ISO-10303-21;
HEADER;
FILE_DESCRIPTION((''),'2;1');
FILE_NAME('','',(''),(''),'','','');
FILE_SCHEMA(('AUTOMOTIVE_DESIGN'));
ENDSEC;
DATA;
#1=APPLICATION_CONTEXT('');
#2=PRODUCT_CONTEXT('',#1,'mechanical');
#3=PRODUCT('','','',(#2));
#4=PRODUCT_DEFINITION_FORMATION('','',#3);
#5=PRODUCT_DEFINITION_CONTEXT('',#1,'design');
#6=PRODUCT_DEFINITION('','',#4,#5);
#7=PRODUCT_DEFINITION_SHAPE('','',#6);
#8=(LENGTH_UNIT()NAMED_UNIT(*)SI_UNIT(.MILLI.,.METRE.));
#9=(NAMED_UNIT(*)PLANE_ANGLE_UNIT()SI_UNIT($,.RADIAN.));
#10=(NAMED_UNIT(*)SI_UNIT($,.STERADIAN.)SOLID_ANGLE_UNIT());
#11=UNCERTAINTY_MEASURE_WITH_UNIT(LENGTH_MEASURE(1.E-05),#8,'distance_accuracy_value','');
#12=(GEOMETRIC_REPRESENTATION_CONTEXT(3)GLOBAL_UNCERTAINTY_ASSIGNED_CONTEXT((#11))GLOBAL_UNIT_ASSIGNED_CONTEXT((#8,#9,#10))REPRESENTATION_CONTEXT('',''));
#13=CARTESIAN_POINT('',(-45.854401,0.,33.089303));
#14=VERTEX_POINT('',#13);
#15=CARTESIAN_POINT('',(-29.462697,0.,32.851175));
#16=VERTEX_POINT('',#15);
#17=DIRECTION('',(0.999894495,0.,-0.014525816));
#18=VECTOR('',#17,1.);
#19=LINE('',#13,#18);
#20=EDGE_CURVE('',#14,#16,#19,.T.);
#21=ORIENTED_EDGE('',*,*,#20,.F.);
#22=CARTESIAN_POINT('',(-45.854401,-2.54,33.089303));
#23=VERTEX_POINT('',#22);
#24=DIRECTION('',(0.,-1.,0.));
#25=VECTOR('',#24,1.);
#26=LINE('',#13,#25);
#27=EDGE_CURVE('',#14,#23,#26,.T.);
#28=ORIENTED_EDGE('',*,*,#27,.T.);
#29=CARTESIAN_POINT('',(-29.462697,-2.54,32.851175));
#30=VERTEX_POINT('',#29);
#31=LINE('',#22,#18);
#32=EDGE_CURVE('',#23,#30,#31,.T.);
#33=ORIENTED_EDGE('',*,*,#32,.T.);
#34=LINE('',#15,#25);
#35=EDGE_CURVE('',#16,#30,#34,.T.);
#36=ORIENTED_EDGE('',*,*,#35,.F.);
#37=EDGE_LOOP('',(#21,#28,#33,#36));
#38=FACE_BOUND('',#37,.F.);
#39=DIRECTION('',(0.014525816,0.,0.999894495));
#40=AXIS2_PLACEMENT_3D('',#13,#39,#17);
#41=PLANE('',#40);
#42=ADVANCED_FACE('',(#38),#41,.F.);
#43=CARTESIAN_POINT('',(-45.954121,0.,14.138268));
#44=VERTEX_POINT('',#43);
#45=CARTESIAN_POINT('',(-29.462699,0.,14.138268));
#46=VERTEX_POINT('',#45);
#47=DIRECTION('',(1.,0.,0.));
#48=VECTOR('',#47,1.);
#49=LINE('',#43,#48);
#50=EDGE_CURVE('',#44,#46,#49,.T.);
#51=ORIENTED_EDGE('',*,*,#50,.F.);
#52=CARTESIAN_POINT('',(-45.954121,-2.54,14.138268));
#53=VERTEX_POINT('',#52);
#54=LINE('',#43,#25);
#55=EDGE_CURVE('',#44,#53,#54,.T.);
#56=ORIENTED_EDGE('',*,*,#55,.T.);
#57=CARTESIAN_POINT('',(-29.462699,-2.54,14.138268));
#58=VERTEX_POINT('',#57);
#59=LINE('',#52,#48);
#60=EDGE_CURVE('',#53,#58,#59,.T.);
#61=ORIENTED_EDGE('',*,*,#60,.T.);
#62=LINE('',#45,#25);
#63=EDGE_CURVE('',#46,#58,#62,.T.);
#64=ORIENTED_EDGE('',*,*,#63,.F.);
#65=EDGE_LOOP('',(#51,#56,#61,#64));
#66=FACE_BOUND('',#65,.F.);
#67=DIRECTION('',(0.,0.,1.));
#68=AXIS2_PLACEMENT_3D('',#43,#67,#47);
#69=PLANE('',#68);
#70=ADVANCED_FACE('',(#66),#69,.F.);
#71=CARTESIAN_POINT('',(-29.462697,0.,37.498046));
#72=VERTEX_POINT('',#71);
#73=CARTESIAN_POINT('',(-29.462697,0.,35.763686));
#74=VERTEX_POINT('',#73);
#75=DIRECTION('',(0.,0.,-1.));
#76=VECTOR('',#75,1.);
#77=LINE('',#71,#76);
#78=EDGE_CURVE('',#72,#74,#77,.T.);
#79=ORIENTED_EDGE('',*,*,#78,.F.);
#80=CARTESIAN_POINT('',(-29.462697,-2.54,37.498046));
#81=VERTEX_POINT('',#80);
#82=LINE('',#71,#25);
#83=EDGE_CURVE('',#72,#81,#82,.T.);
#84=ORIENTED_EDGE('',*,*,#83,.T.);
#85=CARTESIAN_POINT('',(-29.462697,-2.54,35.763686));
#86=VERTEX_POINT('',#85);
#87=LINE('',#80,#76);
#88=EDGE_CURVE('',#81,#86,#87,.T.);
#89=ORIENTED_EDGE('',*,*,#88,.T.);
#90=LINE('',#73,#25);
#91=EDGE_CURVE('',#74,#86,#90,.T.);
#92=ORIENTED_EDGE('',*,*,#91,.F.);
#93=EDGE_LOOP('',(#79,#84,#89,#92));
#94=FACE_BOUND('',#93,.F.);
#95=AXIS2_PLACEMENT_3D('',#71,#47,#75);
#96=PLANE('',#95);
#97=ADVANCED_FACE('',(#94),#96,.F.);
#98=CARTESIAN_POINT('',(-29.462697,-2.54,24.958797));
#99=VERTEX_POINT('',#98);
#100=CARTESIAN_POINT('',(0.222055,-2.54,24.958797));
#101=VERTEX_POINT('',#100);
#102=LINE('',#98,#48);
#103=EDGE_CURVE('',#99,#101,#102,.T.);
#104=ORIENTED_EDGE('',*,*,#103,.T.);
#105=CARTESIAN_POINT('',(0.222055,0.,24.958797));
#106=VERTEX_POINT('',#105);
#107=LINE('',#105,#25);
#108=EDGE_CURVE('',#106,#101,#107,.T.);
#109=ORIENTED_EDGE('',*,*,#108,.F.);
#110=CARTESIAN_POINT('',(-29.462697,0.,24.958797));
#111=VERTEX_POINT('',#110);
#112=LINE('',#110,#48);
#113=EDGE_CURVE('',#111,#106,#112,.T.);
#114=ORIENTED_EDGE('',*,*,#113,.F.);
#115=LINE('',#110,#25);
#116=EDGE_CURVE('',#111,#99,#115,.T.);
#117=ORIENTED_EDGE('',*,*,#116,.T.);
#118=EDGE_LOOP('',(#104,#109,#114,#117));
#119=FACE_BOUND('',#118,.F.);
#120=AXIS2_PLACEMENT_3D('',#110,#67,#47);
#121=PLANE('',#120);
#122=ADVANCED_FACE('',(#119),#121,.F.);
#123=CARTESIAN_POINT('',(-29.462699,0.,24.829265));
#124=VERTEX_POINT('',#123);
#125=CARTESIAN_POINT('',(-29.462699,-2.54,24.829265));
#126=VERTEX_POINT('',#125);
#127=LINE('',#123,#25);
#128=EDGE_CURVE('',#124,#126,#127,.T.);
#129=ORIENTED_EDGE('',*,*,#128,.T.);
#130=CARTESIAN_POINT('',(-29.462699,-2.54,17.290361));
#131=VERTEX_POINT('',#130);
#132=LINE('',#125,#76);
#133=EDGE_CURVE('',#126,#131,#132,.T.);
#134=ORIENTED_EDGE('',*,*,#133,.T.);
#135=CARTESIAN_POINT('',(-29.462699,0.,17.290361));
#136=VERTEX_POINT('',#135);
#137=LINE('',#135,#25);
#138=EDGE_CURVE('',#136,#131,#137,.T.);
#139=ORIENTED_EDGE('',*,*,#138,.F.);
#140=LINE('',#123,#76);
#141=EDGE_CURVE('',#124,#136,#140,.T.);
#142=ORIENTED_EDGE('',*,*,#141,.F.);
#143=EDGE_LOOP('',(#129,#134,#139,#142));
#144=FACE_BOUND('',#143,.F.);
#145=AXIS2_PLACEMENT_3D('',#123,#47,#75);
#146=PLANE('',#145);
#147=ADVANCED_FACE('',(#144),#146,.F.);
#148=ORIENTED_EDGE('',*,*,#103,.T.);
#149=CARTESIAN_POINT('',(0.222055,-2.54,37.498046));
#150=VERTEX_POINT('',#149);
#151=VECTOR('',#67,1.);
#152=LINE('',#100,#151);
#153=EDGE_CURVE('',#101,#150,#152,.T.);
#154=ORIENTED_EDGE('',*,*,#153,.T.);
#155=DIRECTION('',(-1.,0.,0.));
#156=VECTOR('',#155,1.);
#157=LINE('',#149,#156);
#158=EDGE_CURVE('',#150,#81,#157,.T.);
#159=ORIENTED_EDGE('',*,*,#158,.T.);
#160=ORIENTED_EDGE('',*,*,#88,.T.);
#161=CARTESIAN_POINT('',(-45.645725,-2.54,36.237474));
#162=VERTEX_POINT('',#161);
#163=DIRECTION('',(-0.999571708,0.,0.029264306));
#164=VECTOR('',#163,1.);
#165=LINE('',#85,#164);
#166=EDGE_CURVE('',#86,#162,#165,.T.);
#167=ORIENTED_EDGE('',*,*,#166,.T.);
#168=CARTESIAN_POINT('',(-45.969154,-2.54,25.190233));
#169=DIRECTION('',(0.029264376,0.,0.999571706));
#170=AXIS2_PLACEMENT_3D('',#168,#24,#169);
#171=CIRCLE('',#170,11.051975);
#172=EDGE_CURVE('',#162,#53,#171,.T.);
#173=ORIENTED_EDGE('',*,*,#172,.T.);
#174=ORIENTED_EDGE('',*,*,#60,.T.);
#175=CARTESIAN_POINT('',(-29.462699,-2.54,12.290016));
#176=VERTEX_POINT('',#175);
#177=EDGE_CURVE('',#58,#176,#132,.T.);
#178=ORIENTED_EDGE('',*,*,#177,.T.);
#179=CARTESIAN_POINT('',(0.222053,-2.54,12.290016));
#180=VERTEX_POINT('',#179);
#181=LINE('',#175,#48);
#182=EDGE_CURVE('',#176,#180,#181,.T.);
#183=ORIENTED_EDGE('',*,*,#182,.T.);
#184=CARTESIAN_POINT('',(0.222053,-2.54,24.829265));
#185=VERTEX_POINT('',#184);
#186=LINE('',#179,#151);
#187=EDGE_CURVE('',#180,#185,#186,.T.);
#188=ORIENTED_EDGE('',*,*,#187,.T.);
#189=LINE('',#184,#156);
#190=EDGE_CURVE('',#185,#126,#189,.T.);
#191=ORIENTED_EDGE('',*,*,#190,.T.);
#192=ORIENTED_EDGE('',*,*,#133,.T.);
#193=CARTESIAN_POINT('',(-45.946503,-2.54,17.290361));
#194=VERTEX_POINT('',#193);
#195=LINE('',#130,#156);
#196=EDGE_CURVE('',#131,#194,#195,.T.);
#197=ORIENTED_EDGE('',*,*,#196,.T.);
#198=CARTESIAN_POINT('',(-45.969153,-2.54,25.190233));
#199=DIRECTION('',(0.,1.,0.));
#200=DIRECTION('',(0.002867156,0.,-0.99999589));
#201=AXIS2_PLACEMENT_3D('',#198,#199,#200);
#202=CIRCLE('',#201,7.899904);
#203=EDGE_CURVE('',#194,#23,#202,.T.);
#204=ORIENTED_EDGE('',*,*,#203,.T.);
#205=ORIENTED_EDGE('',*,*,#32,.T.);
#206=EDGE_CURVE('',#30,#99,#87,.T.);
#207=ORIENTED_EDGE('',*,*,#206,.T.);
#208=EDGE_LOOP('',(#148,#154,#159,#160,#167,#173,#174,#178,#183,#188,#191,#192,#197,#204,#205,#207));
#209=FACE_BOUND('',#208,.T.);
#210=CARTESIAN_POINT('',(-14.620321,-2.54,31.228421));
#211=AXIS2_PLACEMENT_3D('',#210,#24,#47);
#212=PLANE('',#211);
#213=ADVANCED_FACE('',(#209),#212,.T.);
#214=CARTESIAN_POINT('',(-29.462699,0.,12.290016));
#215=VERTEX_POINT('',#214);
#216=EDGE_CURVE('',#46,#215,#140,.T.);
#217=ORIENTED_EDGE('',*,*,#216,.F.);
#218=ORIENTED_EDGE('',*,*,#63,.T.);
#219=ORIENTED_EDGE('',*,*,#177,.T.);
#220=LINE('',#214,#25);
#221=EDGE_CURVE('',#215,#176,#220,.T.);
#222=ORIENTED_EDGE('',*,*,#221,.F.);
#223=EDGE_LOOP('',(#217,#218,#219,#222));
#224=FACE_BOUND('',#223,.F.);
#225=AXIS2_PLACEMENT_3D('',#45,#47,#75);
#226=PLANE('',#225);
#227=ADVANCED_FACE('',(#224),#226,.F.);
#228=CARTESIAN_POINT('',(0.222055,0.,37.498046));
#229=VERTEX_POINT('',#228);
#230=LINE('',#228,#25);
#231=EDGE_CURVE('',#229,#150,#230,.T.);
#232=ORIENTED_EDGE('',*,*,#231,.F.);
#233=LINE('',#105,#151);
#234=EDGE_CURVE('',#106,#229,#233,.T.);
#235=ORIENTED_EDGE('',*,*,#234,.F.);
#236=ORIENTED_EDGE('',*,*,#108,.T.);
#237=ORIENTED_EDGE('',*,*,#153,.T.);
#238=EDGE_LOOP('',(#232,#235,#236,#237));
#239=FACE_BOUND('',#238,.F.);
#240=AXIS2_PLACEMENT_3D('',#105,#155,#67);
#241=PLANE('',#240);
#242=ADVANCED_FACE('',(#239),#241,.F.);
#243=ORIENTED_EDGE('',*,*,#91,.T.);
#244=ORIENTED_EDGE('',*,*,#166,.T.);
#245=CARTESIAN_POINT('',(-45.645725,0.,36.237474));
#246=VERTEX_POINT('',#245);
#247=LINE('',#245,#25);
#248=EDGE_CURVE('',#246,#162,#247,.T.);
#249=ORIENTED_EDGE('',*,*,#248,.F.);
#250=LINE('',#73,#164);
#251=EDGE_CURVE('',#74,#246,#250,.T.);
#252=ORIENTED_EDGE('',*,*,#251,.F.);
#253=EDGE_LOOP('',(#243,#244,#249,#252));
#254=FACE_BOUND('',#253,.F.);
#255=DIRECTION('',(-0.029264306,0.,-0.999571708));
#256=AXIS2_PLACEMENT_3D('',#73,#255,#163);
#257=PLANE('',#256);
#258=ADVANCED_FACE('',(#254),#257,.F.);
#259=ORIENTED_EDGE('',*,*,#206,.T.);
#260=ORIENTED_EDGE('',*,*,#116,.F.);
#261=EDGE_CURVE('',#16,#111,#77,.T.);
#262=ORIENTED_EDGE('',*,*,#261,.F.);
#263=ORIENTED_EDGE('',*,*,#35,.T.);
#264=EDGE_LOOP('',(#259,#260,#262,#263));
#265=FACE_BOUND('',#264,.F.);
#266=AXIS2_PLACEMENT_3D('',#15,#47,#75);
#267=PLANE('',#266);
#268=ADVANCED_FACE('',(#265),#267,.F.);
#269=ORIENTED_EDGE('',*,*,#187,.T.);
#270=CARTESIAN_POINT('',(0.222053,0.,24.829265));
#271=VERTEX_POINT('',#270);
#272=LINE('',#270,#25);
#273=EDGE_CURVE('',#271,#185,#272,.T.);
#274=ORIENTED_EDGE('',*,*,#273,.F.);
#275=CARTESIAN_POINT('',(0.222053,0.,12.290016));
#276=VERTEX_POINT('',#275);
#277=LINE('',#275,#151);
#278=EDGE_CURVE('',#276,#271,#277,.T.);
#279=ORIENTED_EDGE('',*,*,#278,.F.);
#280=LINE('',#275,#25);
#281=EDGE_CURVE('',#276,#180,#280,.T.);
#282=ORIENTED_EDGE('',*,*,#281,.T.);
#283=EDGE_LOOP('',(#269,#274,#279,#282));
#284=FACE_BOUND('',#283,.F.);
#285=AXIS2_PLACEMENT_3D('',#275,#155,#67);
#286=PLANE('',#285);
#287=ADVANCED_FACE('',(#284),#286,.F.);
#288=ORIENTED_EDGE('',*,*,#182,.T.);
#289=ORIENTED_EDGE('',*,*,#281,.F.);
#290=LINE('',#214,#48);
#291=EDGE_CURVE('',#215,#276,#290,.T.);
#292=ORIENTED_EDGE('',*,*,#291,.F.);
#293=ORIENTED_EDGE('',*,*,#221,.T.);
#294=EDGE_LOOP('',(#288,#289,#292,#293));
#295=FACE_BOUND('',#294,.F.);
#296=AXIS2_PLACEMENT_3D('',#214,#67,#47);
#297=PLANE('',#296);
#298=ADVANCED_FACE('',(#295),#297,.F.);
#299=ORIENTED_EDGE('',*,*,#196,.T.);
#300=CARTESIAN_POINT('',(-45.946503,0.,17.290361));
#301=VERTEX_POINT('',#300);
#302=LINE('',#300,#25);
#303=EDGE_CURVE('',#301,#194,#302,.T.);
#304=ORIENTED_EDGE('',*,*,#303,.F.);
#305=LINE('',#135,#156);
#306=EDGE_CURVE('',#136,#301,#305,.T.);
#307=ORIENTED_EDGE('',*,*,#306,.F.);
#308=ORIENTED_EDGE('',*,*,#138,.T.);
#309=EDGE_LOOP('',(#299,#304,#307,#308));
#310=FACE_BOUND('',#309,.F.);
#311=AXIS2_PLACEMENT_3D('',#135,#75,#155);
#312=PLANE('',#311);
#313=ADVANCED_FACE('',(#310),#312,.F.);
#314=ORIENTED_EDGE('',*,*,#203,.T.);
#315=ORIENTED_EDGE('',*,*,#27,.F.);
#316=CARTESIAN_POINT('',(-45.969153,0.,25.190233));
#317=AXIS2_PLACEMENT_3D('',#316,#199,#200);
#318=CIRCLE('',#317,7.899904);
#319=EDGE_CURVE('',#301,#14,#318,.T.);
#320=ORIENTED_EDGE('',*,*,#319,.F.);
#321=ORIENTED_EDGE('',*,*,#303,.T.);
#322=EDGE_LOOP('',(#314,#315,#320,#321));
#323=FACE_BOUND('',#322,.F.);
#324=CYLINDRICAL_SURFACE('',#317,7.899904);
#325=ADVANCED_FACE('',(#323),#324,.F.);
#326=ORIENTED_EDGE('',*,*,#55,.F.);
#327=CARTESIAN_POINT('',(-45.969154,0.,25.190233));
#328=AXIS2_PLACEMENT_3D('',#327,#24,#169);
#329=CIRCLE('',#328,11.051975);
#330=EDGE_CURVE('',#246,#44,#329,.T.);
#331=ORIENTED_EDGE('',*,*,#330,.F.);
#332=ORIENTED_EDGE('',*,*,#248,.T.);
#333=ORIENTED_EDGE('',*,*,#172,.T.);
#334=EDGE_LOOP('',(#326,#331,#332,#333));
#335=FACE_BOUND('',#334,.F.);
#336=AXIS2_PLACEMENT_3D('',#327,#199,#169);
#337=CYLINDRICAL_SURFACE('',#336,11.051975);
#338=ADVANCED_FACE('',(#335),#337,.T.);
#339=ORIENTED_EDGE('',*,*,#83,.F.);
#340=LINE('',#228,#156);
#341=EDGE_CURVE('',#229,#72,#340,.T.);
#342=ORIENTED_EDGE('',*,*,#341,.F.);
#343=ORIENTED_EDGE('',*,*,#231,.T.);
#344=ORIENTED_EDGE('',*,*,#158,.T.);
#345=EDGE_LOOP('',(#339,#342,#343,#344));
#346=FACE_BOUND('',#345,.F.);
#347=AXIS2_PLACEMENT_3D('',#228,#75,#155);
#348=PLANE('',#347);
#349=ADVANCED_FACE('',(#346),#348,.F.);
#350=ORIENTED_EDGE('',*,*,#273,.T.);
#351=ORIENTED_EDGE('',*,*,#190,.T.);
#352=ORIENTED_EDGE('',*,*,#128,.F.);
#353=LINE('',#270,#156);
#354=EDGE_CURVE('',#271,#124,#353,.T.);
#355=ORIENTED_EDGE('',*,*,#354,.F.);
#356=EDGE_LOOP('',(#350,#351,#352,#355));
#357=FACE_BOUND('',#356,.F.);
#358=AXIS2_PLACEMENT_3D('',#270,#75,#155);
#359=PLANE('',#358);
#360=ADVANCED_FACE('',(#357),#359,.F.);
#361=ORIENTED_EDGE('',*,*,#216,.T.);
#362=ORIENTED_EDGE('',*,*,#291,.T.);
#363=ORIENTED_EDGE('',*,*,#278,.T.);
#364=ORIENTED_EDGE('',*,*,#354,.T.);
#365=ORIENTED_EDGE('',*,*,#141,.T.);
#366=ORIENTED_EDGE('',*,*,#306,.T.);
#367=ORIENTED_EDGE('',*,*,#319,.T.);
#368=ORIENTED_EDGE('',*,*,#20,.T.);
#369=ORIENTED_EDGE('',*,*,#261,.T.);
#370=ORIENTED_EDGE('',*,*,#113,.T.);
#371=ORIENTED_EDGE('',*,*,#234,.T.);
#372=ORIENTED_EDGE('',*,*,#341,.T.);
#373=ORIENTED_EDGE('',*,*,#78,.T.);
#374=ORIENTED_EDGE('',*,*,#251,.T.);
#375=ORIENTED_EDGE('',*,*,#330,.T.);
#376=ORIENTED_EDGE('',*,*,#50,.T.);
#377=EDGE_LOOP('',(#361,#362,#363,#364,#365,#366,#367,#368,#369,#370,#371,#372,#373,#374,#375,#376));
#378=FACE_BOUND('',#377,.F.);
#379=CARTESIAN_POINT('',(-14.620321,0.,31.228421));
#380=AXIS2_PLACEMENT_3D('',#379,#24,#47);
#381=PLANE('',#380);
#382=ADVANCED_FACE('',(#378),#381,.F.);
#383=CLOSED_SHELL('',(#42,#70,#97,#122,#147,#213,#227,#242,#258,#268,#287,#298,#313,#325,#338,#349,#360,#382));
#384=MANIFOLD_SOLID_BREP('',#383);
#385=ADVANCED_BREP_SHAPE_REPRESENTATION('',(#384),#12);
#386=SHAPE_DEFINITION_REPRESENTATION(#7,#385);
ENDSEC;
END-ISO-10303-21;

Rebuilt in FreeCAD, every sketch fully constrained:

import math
import FreeCAD as App
import Part
import Sketcher
Q = App.Units.Quantity

doc = App.newDocument("Part")
body = doc.addObject("PartDesign::Body", "Body")

# Sketch on XZ plane
sketch1 = body.newObject("Sketcher::SketchObject", "Sketch")
sketch1.AttachmentSupport = (doc.getObject("XZ_Plane"), [""])
sketch1.MapMode = "FlatFace"
sketch1.addGeometry([
    Part.LineSegment(App.Vector(0.2, 37.5, 0), App.Vector(-29.5, 37.5, 0)),  # 0
    Part.LineSegment(App.Vector(-29.5, 37.5, 0), App.Vector(-29.5, 35.8, 0)),  # 1
    Part.LineSegment(App.Vector(-29.5, 35.8, 0), App.Vector(-45.6, 36.2, 0)),  # 2
    Part.ArcOfCircle(Part.Circle(App.Vector(-46, 25.2, 0), App.Vector(0, 0, 1), 11.1), math.radians(88), math.radians(270)),  # 3
    Part.LineSegment(App.Vector(-46, 14.1, 0), App.Vector(-29.5, 14.1, 0)),  # 4
    Part.LineSegment(App.Vector(-29.5, 14.1, 0), App.Vector(-29.5, 12.3, 0)),  # 5
    Part.LineSegment(App.Vector(-29.5, 12.3, 0), App.Vector(0.2, 12.3, 0)),  # 6
    Part.LineSegment(App.Vector(0.2, 12.3, 0), App.Vector(0.2, 24.8, 0)),  # 7
    Part.LineSegment(App.Vector(0.2, 24.8, 0), App.Vector(-29.5, 24.8, 0)),  # 8
    Part.LineSegment(App.Vector(-29.5, 24.8, 0), App.Vector(-29.5, 17.3, 0)),  # 9
    Part.LineSegment(App.Vector(-29.5, 17.3, 0), App.Vector(-45.9, 17.3, 0)),  # 10
    Part.ArcOfCircle(Part.Circle(App.Vector(-46, 25.2, 0), App.Vector(0, 0, 1), 7.9), math.radians(89), math.radians(270)),  # 11
    Part.LineSegment(App.Vector(-45.9, 33.1, 0), App.Vector(-29.5, 32.9, 0)),  # 12
    Part.LineSegment(App.Vector(-29.5, 32.9, 0), App.Vector(-29.5, 25, 0)),  # 13
    Part.LineSegment(App.Vector(-29.5, 25, 0), App.Vector(0.2, 25, 0)),  # 14
    Part.LineSegment(App.Vector(0.2, 25, 0), App.Vector(0.2, 37.5, 0)),  # 15
], False)
sketch1.addConstraint([
    Sketcher.Constraint("Coincident", 0, 2, 1, 1),
    Sketcher.Constraint("Coincident", 1, 2, 2, 1),
    Sketcher.Constraint("Tangent", 2, 2, 3, 1),
    Sketcher.Constraint("Coincident", 3, 2, 4, 1),
    Sketcher.Constraint("Coincident", 4, 2, 5, 1),
    Sketcher.Constraint("Coincident", 5, 2, 6, 1),
    Sketcher.Constraint("Coincident", 6, 2, 7, 1),
    Sketcher.Constraint("Coincident", 7, 2, 8, 1),
    Sketcher.Constraint("Coincident", 8, 2, 9, 1),
    Sketcher.Constraint("Coincident", 9, 2, 10, 1),
    Sketcher.Constraint("Coincident", 10, 2, 11, 2),
    Sketcher.Constraint("Tangent", 11, 1, 12, 1),
    Sketcher.Constraint("Coincident", 12, 2, 13, 1),
    Sketcher.Constraint("Coincident", 13, 2, 14, 1),
    Sketcher.Constraint("Coincident", 14, 2, 15, 1),
    Sketcher.Constraint("Coincident", 15, 2, 0, 1),
    Sketcher.Constraint("Horizontal", 0),
    Sketcher.Constraint("Vertical", 1),
    Sketcher.Constraint("Horizontal", 4),
    Sketcher.Constraint("Vertical", 5),
    Sketcher.Constraint("Horizontal", 6),
    Sketcher.Constraint("Vertical", 7),
    Sketcher.Constraint("Horizontal", 8),
    Sketcher.Constraint("Vertical", 9),
    Sketcher.Constraint("Horizontal", 10),
    Sketcher.Constraint("Vertical", 13),
    Sketcher.Constraint("Horizontal", 14),
    Sketcher.Constraint("Vertical", 15),
    Sketcher.Constraint("Coincident", 11, 3, 3, 3),
    Sketcher.Constraint("Vertical", 5, 2, 8, 2),
    Sketcher.Constraint("Vertical", 1, 2, 12, 2),
    Sketcher.Constraint("Equal", 0, 6),
    Sketcher.Constraint("Equal", 7, 15),
    Sketcher.Constraint("Distance", 2, Q("0.6374001 in")),
    Sketcher.Constraint("Radius", 3, Q("11.051975 mm")),
    Sketcher.Constraint("Radius", 11, Q("7.899904 mm")),
    Sketcher.Constraint("DistanceX", 3, 2, 10, 2, Q("0.0002999 in")),
    Sketcher.Constraint("DistanceX", 0, 2, 0, 1, Q("29.684752 mm")),
    Sketcher.Constraint("DistanceX", 4, 1, 4, 2, Q("16.491422 mm")),
    Sketcher.Constraint("DistanceY", 1, 2, 1, 1, Q("1.73436 mm")),
    Sketcher.Constraint("DistanceY", 7, 1, 7, 2, Q("12.539249 mm")),
    Sketcher.Constraint("DistanceX", 4, 2, -1, 1, Q("29.462699 mm")),
    Sketcher.Constraint("DistanceX", 11, 1, -1, 1, Q("45.854401 mm")),
    Sketcher.Constraint("DistanceY", 5, 2, 5, 1, Q("1.848252 mm")),
    Sketcher.Constraint("DistanceY", 13, 2, 13, 1, Q("7.892378 mm")),
    Sketcher.Constraint("DistanceY", -1, 1, 3, 2, Q("14.138268 mm")),
    Sketcher.Constraint("DistanceX", 3, 3, 2, 2, Q("0.323429 mm")),
])
pad1 = body.newObject("PartDesign::Pad", "Pad")
pad1.Profile = sketch1
pad1.Length = Q("0.1 in")

doc.recompute()
